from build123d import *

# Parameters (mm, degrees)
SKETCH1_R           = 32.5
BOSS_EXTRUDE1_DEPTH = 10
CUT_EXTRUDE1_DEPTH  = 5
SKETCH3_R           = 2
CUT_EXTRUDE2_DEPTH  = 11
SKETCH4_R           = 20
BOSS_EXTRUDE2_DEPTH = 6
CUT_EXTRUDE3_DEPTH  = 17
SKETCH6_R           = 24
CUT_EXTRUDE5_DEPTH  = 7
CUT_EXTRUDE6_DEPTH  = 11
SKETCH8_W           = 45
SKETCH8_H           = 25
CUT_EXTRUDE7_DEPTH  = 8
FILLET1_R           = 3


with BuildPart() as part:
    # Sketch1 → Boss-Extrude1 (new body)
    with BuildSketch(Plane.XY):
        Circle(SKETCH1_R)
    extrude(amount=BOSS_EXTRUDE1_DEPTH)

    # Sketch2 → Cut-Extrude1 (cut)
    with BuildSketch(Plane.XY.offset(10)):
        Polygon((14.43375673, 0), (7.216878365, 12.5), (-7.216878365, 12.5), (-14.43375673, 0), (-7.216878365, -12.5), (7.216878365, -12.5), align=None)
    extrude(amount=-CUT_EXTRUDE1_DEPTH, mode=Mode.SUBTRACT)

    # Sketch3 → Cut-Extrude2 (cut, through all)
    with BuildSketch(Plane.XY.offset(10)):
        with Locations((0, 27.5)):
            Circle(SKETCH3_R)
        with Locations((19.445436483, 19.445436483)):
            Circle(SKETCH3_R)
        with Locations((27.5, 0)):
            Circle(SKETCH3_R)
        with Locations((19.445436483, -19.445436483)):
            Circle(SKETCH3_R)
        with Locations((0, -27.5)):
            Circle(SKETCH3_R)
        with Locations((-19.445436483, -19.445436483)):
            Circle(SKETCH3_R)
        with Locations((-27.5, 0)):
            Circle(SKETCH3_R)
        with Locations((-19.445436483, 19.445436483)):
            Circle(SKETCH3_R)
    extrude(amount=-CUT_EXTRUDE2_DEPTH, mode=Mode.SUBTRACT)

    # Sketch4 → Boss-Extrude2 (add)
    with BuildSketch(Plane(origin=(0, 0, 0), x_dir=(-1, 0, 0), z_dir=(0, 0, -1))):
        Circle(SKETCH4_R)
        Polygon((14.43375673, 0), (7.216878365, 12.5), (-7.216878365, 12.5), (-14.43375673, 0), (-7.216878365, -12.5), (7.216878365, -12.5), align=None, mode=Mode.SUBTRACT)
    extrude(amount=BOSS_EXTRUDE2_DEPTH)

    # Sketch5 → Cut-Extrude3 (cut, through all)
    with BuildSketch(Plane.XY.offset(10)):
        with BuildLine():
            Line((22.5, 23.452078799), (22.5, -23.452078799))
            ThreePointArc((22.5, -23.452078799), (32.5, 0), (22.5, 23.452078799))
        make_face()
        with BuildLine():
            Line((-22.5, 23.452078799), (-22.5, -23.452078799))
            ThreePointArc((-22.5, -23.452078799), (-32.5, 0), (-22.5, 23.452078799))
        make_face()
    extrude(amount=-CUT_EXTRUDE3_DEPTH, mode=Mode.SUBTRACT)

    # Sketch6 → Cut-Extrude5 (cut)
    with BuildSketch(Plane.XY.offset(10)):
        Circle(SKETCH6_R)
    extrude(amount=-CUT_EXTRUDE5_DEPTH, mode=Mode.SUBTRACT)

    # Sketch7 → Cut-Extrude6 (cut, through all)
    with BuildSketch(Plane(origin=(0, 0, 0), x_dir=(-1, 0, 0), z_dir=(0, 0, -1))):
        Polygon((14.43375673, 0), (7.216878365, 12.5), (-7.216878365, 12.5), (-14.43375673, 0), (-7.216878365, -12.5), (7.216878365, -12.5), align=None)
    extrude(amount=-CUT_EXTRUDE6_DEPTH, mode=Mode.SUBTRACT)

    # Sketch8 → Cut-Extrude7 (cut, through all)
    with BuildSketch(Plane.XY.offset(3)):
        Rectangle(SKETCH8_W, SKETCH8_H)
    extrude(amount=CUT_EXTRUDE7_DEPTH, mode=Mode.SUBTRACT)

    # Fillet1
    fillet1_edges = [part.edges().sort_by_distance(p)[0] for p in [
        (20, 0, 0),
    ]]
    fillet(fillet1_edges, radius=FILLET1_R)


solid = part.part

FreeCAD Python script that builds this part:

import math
import FreeCAD as App
import Part
import Sketcher

V = App.Vector
Q = App.Units.Quantity


def edges_at(feature, points):
    """Names of the edges that pass closest to the given points."""
    edges = feature.Shape.Edges
    near = lambda p: min(range(len(edges)), key=lambda i: edges[i].distToShape(Part.Vertex(*p))[0])
    return sorted({f"Edge{near(p) + 1}" for p in points})

doc = App.newDocument("Part")
body = doc.addObject("PartDesign::Body", "Body")

sketch1 = body.newObject("Sketcher::SketchObject", "Sketch")
sketch1.AttachmentSupport = (doc.getObject("XY_Plane"), [""])
sketch1.MapMode = "FlatFace"
sketch1.addGeometry(Part.Circle(V(0, 0, 0), V(0, 0, 1), 32), False)
sketch1.addConstraint([
    Sketcher.Constraint("Coincident", 0, 3, -1, 1),
    Sketcher.Constraint("Diameter", 0, Q("65 mm")),
])
pad1 = body.newObject("PartDesign::Pad", "Pad")
pad1.Profile = sketch1
pad1.Length = 10

sketch2 = body.newObject("Sketcher::SketchObject", "Sketch001")
sketch2.AttachmentSupport = (doc.getObject("XY_Plane"), [""])
sketch2.MapMode = "FlatFace"
sketch2.AttachmentOffset = App.Placement(V(0, 0, 10), App.Rotation())
sketch2.addGeometry([
    Part.LineSegment(V(14, 0, 0), V(7, 12, 0)),
    Part.LineSegment(V(7, 12, 0), V(-7, 12, 0)),
    Part.LineSegment(V(-7, 12, 0), V(-14, 0, 0)),
    Part.LineSegment(V(-14, 0, 0), V(-7, -12, 0)),
    Part.LineSegment(V(-7, -12, 0), V(7, -12, 0)),
    Part.LineSegment(V(7, -12, 0), V(14, 0, 0)),
], False)
sketch2.addConstraint([
    Sketcher.Constraint("Coincident", 0, 2, 1, 1),
    Sketcher.Constraint("Coincident", 1, 2, 2, 1),
    Sketcher.Constraint("Coincident", 2, 2, 3, 1),
    Sketcher.Constraint("Coincident", 3, 2, 4, 1),
    Sketcher.Constraint("Coincident", 4, 2, 5, 1),
    Sketcher.Constraint("Coincident", 5, 2, 0, 1),
    Sketcher.Constraint("Horizontal", 1),
    Sketcher.Constraint("Horizontal", 4),
    Sketcher.Constraint("Symmetric", 0, 2, 3, 2, -1, 1),
    Sketcher.Constraint("Symmetric", 2, 2, 5, 2, -1, 1),
    Sketcher.Constraint("PointOnObject", 2, 2, -1),
    Sketcher.Constraint("Parallel", 2, 5),
    Sketcher.Constraint("Vertical", 1, 2, 3, 2),
    Sketcher.Constraint("Angle", 0, Q("120 deg")),
    Sketcher.Constraint("DistanceY", 3, 2, 1, 2, Q("25 mm")),
    Sketcher.Constraint("DistanceX", 1, 2, 1, 1, Q("14.433757 mm")),
])
pocket1 = body.newObject("PartDesign::Pocket", "Pocket")
pocket1.Profile = sketch2
pocket1.Length = 5

sketch3 = body.newObject("Sketcher::SketchObject", "Sketch002")
sketch3.AttachmentSupport = (doc.getObject("XY_Plane"), [""])
sketch3.MapMode = "FlatFace"
sketch3.AttachmentOffset = App.Placement(V(0, 0, 10), App.Rotation())
sketch3.addGeometry([
    Part.Circle(V(0, 27.5, 0), V(0, 0, 1), 2),
    Part.Circle(V(19.4, 19.4, 0), V(0, 0, 1), 2),
    Part.Circle(V(27.5, 0, 0), V(0, 0, 1), 2),
    Part.Circle(V(19.4, -19.4, 0), V(0, 0, 1), 2),
    Part.Circle(V(0, -27.5, 0), V(0, 0, 1), 2),
    Part.Circle(V(-19.4, -19.4, 0), V(0, 0, 1), 2),
    Part.Circle(V(-27.5, 0, 0), V(0, 0, 1), 2),
    Part.Circle(V(-19.4, 19.4, 0), V(0, 0, 1), 2),
], False)
sketch3.addConstraint([
    Sketcher.Constraint("Equal", 0, 1),
    Sketcher.Constraint("Equal", 1, 2),
    Sketcher.Constraint("Equal", 2, 3),
    Sketcher.Constraint("Equal", 3, 4),
    Sketcher.Constraint("Equal", 4, 5),
    Sketcher.Constraint("Equal", 5, 6),
    Sketcher.Constraint("Equal", 6, 7),
    Sketcher.Constraint("Symmetric", 0, 3, 4, 3, -1, 1),
    Sketcher.Constraint("Symmetric", 1, 3, 5, 3, -1, 1),
    Sketcher.Constraint("Symmetric", 2, 3, 6, 3, -1, 1),
    Sketcher.Constraint("Symmetric", 3, 3, 7, 3, -1, 1),
    Sketcher.Constraint("Symmetric", 3, 3, 5, 3, -2),
    Sketcher.Constraint("PointOnObject", 0, 3, -2),
    Sketcher.Constraint("PointOnObject", 2, 3, -1),
    Sketcher.Constraint("Diameter", 0, Q("4 mm")),
    Sketcher.Constraint("DistanceY", 4, 3, 0, 3, Q("55 mm")),
    Sketcher.Constraint("DistanceX", -1, 1, 2, 3, Q("27.5 mm")),
    Sketcher.Constraint("DistanceX", -1, 1, 1, 3, Q("19.445436 mm")),
    Sketcher.Constraint("DistanceY", -1, 1, 1, 3, Q("19.445436 mm")),
])
pocket2 = body.newObject("PartDesign::Pocket", "Pocket001")
pocket2.Profile = sketch3
pocket2.Type = "ThroughAll"

sketch4 = body.newObject("Sketcher::SketchObject", "Sketch003")
sketch4.AttachmentSupport = (doc.getObject("XY_Plane"), [""])
sketch4.MapMode = "FlatFace"
sketch4.addGeometry([
    Part.Circle(V(0, 0, 0), V(0, 0, 1), 20),
    Part.LineSegment(V(-7, 12, 0), V(-14, 0, 0)),
    Part.LineSegment(V(-14, 0, 0), V(-7, -12, 0)),
    Part.LineSegment(V(-7, -12, 0), V(7, -12, 0)),
    Part.LineSegment(V(7, -12, 0), V(14, 0, 0)),
    Part.LineSegment(V(14, 0, 0), V(7, 12, 0)),
    Part.LineSegment(V(7, 12, 0), V(-7, 12, 0)),
], False)
sketch4.addConstraint([
    Sketcher.Constraint("Coincident", 1, 2, 2, 1),
    Sketcher.Constraint("Coincident", 2, 2, 3, 1),
    Sketcher.Constraint("Coincident", 3, 2, 4, 1),
    Sketcher.Constraint("Coincident", 4, 2, 5, 1),
    Sketcher.Constraint("Coincident", 5, 2, 6, 1),
    Sketcher.Constraint("Coincident", 6, 2, 1, 1),
    Sketcher.Constraint("Horizontal", 3),
    Sketcher.Constraint("Horizontal", 6),
    Sketcher.Constraint("Coincident", 0, 3, -1, 1),
    Sketcher.Constraint("Symmetric", 1, 2, 4, 2, -1, 1),
    Sketcher.Constraint("Symmetric", 2, 2, 5, 2, -1, 1),
    Sketcher.Constraint("PointOnObject", 1, 2, -1),
    Sketcher.Constraint("Parallel", 1, 4),
    Sketcher.Constraint("Vertical", 3, 2, 5, 2),
    Sketcher.Constraint("Diameter", 0, Q("40 mm")),
    Sketcher.Constraint("Angle", 1, Q("-120 deg")),
    Sketcher.Constraint("DistanceY", 3, 2, 5, 2, Q("25 mm")),
    Sketcher.Constraint("DistanceX", 3, 1, 3, 2, Q("14.433757 mm")),
])
pad2 = body.newObject("PartDesign::Pad", "Pad001")
pad2.Profile = sketch4
pad2.Length = 6
pad2.Reversed = True

sketch5 = body.newObject("Sketcher::SketchObject", "Sketch004")
sketch5.AttachmentSupport = (doc.getObject("XY_Plane"), [""])
sketch5.MapMode = "FlatFace"
sketch5.AttachmentOffset = App.Placement(V(0, 0, 10), App.Rotation())
sketch5.addGeometry([
    Part.LineSegment(V(22, 23, 0), V(22, -23, 0)),
    Part.ArcOfCircle(Part.Circle(V(0, 0, 0), V(0, 0, 1), 32), math.radians(-46), math.radians(46)),
    Part.LineSegment(V(-22, -23, 0), V(-22, 23, 0)),
    Part.ArcOfCircle(Part.Circle(V(0, 0, 0), V(0, 0, 1), 32), math.radians(134), math.radians(226)),
], False)
sketch5.addConstraint([
    Sketcher.Constraint("Coincident", 0, 1, 1, 2),
    Sketcher.Constraint("Coincident", 1, 1, 0, 2),
    Sketcher.Constraint("Coincident", 2, 1, 3, 2),
    Sketcher.Constraint("Coincident", 3, 1, 2, 2),
    Sketcher.Constraint("Vertical", 0),
    Sketcher.Constraint("Vertical", 2),
    Sketcher.Constraint("Coincident", 1, 3, -1, 1),
    Sketcher.Constraint("Coincident", 3, 3, -1, 1),
    Sketcher.Constraint("Equal", 1, 3),
    Sketcher.Constraint("Horizontal", 1, 1, 2, 1),
    Sketcher.Constraint("Radius", 1, Q("32.5 mm")),
    Sketcher.Constraint("DistanceX", 2, 1, 1, 1, Q("45 mm")),
])
pocket3 = body.newObject("PartDesign::Pocket", "Pocket002")
pocket3.Profile = sketch5
pocket3.Type = "ThroughAll"

sketch6 = body.newObject("Sketcher::SketchObject", "Sketch005")
sketch6.AttachmentSupport = (doc.getObject("XY_Plane"), [""])
sketch6.MapMode = "FlatFace"
sketch6.AttachmentOffset = App.Placement(V(0, 0, 10), App.Rotation())
sketch6.addGeometry(Part.Circle(V(0, 0, 0), V(0, 0, 1), 24), False)
sketch6.addConstraint([
    Sketcher.Constraint("Coincident", 0, 3, -1, 1),
    Sketcher.Constraint("Diameter", 0, Q("48 mm")),
])
pocket4 = body.newObject("PartDesign::Pocket", "Pocket003")
pocket4.Profile = sketch6
pocket4.Length = 7

sketch7 = body.newObject("Sketcher::SketchObject", "Sketch006")
sketch7.AttachmentSupport = (doc.getObject("XY_Plane"), [""])
sketch7.MapMode = "FlatFace"
sketch7.addGeometry([
    Part.LineSegment(V(-14, 0, 0), V(-7, 12, 0)),
    Part.LineSegment(V(-7, 12, 0), V(7, 12, 0)),
    Part.LineSegment(V(7, 12, 0), V(14, 0, 0)),
    Part.LineSegment(V(14, 0, 0), V(7, -12, 0)),
    Part.LineSegment(V(7, -12, 0), V(-7, -12, 0)),
    Part.LineSegment(V(-7, -12, 0), V(-14, 0, 0)),
], False)
sketch7.addConstraint([
    Sketcher.Constraint("Coincident", 0, 2, 1, 1),
    Sketcher.Constraint("Coincident", 1, 2, 2, 1),
    Sketcher.Constraint("Coincident", 2, 2, 3, 1),
    Sketcher.Constraint("Coincident", 3, 2, 4, 1),
    Sketcher.Constraint("Coincident", 4, 2, 5, 1),
    Sketcher.Constraint("Coincident", 5, 2, 0, 1),
    Sketcher.Constraint("Horizontal", 1),
    Sketcher.Constraint("Horizontal", 4),
    Sketcher.Constraint("Symmetric", 0, 2, 3, 2, -1, 1),
    Sketcher.Constraint("Symmetric", 2, 2, 5, 2, -1, 1),
    Sketcher.Constraint("PointOnObject", 2, 2, -1),
    Sketcher.Constraint("Parallel", 2, 5),
    Sketcher.Constraint("Vertical", 1, 2, 3, 2),
    Sketcher.Constraint("Angle", 0, Q("60 deg")),
    Sketcher.Constraint("DistanceY", 3, 2, 1, 2, Q("25 mm")),
    Sketcher.Constraint("DistanceX", 1, 1, 1, 2, Q("14.433757 mm")),
])
pocket5 = body.newObject("PartDesign::Pocket", "Pocket004")
pocket5.Profile = sketch7
pocket5.Type = "ThroughAll"
pocket5.Reversed = True

sketch8 = body.newObject("Sketcher::SketchObject", "Sketch007")
sketch8.AttachmentSupport = (doc.getObject("XY_Plane"), [""])
sketch8.MapMode = "FlatFace"
sketch8.AttachmentOffset = App.Placement(V(0, 0, 3), App.Rotation())
sketch8.addGeometry([
    Part.LineSegment(V(-22, 12, 0), V(-22, -12, 0)),
    Part.LineSegment(V(-22, -12, 0), V(22, -12, 0)),
    Part.LineSegment(V(22, -12, 0), V(22, 12, 0)),
    Part.LineSegment(V(22, 12, 0), V(-22, 12, 0)),
], False)
sketch8.addConstraint([
    Sketcher.Constraint("Coincident", 0, 2, 1, 1),
    Sketcher.Constraint("Coincident", 1, 2, 2, 1),
    Sketcher.Constraint("Coincident", 2, 2, 3, 1),
    Sketcher.Constraint("Coincident", 3, 2, 0, 1),
    Sketcher.Constraint("Vertical", 0),
    Sketcher.Constraint("Horizontal", 1),
    Sketcher.Constraint("Vertical", 2),
    Sketcher.Constraint("Horizontal", 3),
    Sketcher.Constraint("Symmetric", 0, 2, 2, 2, -1, 1),
    Sketcher.Constraint("DistanceX", 1, 1, 1, 2, Q("45 mm")),
    Sketcher.Constraint("DistanceY", 0, 2, 0, 1, Q("25 mm")),
])
pocket6 = body.newObject("PartDesign::Pocket", "Pocket005")
pocket6.Profile = sketch8
pocket6.Type = "ThroughAll"
pocket6.Reversed = True
doc.recompute()

fillet = body.newObject("PartDesign::Fillet", "Fillet")
fillet.Base = (pocket6, edges_at(pocket6, [(20, 0, 0)]))
fillet.Radius = 3

doc.recompute()
